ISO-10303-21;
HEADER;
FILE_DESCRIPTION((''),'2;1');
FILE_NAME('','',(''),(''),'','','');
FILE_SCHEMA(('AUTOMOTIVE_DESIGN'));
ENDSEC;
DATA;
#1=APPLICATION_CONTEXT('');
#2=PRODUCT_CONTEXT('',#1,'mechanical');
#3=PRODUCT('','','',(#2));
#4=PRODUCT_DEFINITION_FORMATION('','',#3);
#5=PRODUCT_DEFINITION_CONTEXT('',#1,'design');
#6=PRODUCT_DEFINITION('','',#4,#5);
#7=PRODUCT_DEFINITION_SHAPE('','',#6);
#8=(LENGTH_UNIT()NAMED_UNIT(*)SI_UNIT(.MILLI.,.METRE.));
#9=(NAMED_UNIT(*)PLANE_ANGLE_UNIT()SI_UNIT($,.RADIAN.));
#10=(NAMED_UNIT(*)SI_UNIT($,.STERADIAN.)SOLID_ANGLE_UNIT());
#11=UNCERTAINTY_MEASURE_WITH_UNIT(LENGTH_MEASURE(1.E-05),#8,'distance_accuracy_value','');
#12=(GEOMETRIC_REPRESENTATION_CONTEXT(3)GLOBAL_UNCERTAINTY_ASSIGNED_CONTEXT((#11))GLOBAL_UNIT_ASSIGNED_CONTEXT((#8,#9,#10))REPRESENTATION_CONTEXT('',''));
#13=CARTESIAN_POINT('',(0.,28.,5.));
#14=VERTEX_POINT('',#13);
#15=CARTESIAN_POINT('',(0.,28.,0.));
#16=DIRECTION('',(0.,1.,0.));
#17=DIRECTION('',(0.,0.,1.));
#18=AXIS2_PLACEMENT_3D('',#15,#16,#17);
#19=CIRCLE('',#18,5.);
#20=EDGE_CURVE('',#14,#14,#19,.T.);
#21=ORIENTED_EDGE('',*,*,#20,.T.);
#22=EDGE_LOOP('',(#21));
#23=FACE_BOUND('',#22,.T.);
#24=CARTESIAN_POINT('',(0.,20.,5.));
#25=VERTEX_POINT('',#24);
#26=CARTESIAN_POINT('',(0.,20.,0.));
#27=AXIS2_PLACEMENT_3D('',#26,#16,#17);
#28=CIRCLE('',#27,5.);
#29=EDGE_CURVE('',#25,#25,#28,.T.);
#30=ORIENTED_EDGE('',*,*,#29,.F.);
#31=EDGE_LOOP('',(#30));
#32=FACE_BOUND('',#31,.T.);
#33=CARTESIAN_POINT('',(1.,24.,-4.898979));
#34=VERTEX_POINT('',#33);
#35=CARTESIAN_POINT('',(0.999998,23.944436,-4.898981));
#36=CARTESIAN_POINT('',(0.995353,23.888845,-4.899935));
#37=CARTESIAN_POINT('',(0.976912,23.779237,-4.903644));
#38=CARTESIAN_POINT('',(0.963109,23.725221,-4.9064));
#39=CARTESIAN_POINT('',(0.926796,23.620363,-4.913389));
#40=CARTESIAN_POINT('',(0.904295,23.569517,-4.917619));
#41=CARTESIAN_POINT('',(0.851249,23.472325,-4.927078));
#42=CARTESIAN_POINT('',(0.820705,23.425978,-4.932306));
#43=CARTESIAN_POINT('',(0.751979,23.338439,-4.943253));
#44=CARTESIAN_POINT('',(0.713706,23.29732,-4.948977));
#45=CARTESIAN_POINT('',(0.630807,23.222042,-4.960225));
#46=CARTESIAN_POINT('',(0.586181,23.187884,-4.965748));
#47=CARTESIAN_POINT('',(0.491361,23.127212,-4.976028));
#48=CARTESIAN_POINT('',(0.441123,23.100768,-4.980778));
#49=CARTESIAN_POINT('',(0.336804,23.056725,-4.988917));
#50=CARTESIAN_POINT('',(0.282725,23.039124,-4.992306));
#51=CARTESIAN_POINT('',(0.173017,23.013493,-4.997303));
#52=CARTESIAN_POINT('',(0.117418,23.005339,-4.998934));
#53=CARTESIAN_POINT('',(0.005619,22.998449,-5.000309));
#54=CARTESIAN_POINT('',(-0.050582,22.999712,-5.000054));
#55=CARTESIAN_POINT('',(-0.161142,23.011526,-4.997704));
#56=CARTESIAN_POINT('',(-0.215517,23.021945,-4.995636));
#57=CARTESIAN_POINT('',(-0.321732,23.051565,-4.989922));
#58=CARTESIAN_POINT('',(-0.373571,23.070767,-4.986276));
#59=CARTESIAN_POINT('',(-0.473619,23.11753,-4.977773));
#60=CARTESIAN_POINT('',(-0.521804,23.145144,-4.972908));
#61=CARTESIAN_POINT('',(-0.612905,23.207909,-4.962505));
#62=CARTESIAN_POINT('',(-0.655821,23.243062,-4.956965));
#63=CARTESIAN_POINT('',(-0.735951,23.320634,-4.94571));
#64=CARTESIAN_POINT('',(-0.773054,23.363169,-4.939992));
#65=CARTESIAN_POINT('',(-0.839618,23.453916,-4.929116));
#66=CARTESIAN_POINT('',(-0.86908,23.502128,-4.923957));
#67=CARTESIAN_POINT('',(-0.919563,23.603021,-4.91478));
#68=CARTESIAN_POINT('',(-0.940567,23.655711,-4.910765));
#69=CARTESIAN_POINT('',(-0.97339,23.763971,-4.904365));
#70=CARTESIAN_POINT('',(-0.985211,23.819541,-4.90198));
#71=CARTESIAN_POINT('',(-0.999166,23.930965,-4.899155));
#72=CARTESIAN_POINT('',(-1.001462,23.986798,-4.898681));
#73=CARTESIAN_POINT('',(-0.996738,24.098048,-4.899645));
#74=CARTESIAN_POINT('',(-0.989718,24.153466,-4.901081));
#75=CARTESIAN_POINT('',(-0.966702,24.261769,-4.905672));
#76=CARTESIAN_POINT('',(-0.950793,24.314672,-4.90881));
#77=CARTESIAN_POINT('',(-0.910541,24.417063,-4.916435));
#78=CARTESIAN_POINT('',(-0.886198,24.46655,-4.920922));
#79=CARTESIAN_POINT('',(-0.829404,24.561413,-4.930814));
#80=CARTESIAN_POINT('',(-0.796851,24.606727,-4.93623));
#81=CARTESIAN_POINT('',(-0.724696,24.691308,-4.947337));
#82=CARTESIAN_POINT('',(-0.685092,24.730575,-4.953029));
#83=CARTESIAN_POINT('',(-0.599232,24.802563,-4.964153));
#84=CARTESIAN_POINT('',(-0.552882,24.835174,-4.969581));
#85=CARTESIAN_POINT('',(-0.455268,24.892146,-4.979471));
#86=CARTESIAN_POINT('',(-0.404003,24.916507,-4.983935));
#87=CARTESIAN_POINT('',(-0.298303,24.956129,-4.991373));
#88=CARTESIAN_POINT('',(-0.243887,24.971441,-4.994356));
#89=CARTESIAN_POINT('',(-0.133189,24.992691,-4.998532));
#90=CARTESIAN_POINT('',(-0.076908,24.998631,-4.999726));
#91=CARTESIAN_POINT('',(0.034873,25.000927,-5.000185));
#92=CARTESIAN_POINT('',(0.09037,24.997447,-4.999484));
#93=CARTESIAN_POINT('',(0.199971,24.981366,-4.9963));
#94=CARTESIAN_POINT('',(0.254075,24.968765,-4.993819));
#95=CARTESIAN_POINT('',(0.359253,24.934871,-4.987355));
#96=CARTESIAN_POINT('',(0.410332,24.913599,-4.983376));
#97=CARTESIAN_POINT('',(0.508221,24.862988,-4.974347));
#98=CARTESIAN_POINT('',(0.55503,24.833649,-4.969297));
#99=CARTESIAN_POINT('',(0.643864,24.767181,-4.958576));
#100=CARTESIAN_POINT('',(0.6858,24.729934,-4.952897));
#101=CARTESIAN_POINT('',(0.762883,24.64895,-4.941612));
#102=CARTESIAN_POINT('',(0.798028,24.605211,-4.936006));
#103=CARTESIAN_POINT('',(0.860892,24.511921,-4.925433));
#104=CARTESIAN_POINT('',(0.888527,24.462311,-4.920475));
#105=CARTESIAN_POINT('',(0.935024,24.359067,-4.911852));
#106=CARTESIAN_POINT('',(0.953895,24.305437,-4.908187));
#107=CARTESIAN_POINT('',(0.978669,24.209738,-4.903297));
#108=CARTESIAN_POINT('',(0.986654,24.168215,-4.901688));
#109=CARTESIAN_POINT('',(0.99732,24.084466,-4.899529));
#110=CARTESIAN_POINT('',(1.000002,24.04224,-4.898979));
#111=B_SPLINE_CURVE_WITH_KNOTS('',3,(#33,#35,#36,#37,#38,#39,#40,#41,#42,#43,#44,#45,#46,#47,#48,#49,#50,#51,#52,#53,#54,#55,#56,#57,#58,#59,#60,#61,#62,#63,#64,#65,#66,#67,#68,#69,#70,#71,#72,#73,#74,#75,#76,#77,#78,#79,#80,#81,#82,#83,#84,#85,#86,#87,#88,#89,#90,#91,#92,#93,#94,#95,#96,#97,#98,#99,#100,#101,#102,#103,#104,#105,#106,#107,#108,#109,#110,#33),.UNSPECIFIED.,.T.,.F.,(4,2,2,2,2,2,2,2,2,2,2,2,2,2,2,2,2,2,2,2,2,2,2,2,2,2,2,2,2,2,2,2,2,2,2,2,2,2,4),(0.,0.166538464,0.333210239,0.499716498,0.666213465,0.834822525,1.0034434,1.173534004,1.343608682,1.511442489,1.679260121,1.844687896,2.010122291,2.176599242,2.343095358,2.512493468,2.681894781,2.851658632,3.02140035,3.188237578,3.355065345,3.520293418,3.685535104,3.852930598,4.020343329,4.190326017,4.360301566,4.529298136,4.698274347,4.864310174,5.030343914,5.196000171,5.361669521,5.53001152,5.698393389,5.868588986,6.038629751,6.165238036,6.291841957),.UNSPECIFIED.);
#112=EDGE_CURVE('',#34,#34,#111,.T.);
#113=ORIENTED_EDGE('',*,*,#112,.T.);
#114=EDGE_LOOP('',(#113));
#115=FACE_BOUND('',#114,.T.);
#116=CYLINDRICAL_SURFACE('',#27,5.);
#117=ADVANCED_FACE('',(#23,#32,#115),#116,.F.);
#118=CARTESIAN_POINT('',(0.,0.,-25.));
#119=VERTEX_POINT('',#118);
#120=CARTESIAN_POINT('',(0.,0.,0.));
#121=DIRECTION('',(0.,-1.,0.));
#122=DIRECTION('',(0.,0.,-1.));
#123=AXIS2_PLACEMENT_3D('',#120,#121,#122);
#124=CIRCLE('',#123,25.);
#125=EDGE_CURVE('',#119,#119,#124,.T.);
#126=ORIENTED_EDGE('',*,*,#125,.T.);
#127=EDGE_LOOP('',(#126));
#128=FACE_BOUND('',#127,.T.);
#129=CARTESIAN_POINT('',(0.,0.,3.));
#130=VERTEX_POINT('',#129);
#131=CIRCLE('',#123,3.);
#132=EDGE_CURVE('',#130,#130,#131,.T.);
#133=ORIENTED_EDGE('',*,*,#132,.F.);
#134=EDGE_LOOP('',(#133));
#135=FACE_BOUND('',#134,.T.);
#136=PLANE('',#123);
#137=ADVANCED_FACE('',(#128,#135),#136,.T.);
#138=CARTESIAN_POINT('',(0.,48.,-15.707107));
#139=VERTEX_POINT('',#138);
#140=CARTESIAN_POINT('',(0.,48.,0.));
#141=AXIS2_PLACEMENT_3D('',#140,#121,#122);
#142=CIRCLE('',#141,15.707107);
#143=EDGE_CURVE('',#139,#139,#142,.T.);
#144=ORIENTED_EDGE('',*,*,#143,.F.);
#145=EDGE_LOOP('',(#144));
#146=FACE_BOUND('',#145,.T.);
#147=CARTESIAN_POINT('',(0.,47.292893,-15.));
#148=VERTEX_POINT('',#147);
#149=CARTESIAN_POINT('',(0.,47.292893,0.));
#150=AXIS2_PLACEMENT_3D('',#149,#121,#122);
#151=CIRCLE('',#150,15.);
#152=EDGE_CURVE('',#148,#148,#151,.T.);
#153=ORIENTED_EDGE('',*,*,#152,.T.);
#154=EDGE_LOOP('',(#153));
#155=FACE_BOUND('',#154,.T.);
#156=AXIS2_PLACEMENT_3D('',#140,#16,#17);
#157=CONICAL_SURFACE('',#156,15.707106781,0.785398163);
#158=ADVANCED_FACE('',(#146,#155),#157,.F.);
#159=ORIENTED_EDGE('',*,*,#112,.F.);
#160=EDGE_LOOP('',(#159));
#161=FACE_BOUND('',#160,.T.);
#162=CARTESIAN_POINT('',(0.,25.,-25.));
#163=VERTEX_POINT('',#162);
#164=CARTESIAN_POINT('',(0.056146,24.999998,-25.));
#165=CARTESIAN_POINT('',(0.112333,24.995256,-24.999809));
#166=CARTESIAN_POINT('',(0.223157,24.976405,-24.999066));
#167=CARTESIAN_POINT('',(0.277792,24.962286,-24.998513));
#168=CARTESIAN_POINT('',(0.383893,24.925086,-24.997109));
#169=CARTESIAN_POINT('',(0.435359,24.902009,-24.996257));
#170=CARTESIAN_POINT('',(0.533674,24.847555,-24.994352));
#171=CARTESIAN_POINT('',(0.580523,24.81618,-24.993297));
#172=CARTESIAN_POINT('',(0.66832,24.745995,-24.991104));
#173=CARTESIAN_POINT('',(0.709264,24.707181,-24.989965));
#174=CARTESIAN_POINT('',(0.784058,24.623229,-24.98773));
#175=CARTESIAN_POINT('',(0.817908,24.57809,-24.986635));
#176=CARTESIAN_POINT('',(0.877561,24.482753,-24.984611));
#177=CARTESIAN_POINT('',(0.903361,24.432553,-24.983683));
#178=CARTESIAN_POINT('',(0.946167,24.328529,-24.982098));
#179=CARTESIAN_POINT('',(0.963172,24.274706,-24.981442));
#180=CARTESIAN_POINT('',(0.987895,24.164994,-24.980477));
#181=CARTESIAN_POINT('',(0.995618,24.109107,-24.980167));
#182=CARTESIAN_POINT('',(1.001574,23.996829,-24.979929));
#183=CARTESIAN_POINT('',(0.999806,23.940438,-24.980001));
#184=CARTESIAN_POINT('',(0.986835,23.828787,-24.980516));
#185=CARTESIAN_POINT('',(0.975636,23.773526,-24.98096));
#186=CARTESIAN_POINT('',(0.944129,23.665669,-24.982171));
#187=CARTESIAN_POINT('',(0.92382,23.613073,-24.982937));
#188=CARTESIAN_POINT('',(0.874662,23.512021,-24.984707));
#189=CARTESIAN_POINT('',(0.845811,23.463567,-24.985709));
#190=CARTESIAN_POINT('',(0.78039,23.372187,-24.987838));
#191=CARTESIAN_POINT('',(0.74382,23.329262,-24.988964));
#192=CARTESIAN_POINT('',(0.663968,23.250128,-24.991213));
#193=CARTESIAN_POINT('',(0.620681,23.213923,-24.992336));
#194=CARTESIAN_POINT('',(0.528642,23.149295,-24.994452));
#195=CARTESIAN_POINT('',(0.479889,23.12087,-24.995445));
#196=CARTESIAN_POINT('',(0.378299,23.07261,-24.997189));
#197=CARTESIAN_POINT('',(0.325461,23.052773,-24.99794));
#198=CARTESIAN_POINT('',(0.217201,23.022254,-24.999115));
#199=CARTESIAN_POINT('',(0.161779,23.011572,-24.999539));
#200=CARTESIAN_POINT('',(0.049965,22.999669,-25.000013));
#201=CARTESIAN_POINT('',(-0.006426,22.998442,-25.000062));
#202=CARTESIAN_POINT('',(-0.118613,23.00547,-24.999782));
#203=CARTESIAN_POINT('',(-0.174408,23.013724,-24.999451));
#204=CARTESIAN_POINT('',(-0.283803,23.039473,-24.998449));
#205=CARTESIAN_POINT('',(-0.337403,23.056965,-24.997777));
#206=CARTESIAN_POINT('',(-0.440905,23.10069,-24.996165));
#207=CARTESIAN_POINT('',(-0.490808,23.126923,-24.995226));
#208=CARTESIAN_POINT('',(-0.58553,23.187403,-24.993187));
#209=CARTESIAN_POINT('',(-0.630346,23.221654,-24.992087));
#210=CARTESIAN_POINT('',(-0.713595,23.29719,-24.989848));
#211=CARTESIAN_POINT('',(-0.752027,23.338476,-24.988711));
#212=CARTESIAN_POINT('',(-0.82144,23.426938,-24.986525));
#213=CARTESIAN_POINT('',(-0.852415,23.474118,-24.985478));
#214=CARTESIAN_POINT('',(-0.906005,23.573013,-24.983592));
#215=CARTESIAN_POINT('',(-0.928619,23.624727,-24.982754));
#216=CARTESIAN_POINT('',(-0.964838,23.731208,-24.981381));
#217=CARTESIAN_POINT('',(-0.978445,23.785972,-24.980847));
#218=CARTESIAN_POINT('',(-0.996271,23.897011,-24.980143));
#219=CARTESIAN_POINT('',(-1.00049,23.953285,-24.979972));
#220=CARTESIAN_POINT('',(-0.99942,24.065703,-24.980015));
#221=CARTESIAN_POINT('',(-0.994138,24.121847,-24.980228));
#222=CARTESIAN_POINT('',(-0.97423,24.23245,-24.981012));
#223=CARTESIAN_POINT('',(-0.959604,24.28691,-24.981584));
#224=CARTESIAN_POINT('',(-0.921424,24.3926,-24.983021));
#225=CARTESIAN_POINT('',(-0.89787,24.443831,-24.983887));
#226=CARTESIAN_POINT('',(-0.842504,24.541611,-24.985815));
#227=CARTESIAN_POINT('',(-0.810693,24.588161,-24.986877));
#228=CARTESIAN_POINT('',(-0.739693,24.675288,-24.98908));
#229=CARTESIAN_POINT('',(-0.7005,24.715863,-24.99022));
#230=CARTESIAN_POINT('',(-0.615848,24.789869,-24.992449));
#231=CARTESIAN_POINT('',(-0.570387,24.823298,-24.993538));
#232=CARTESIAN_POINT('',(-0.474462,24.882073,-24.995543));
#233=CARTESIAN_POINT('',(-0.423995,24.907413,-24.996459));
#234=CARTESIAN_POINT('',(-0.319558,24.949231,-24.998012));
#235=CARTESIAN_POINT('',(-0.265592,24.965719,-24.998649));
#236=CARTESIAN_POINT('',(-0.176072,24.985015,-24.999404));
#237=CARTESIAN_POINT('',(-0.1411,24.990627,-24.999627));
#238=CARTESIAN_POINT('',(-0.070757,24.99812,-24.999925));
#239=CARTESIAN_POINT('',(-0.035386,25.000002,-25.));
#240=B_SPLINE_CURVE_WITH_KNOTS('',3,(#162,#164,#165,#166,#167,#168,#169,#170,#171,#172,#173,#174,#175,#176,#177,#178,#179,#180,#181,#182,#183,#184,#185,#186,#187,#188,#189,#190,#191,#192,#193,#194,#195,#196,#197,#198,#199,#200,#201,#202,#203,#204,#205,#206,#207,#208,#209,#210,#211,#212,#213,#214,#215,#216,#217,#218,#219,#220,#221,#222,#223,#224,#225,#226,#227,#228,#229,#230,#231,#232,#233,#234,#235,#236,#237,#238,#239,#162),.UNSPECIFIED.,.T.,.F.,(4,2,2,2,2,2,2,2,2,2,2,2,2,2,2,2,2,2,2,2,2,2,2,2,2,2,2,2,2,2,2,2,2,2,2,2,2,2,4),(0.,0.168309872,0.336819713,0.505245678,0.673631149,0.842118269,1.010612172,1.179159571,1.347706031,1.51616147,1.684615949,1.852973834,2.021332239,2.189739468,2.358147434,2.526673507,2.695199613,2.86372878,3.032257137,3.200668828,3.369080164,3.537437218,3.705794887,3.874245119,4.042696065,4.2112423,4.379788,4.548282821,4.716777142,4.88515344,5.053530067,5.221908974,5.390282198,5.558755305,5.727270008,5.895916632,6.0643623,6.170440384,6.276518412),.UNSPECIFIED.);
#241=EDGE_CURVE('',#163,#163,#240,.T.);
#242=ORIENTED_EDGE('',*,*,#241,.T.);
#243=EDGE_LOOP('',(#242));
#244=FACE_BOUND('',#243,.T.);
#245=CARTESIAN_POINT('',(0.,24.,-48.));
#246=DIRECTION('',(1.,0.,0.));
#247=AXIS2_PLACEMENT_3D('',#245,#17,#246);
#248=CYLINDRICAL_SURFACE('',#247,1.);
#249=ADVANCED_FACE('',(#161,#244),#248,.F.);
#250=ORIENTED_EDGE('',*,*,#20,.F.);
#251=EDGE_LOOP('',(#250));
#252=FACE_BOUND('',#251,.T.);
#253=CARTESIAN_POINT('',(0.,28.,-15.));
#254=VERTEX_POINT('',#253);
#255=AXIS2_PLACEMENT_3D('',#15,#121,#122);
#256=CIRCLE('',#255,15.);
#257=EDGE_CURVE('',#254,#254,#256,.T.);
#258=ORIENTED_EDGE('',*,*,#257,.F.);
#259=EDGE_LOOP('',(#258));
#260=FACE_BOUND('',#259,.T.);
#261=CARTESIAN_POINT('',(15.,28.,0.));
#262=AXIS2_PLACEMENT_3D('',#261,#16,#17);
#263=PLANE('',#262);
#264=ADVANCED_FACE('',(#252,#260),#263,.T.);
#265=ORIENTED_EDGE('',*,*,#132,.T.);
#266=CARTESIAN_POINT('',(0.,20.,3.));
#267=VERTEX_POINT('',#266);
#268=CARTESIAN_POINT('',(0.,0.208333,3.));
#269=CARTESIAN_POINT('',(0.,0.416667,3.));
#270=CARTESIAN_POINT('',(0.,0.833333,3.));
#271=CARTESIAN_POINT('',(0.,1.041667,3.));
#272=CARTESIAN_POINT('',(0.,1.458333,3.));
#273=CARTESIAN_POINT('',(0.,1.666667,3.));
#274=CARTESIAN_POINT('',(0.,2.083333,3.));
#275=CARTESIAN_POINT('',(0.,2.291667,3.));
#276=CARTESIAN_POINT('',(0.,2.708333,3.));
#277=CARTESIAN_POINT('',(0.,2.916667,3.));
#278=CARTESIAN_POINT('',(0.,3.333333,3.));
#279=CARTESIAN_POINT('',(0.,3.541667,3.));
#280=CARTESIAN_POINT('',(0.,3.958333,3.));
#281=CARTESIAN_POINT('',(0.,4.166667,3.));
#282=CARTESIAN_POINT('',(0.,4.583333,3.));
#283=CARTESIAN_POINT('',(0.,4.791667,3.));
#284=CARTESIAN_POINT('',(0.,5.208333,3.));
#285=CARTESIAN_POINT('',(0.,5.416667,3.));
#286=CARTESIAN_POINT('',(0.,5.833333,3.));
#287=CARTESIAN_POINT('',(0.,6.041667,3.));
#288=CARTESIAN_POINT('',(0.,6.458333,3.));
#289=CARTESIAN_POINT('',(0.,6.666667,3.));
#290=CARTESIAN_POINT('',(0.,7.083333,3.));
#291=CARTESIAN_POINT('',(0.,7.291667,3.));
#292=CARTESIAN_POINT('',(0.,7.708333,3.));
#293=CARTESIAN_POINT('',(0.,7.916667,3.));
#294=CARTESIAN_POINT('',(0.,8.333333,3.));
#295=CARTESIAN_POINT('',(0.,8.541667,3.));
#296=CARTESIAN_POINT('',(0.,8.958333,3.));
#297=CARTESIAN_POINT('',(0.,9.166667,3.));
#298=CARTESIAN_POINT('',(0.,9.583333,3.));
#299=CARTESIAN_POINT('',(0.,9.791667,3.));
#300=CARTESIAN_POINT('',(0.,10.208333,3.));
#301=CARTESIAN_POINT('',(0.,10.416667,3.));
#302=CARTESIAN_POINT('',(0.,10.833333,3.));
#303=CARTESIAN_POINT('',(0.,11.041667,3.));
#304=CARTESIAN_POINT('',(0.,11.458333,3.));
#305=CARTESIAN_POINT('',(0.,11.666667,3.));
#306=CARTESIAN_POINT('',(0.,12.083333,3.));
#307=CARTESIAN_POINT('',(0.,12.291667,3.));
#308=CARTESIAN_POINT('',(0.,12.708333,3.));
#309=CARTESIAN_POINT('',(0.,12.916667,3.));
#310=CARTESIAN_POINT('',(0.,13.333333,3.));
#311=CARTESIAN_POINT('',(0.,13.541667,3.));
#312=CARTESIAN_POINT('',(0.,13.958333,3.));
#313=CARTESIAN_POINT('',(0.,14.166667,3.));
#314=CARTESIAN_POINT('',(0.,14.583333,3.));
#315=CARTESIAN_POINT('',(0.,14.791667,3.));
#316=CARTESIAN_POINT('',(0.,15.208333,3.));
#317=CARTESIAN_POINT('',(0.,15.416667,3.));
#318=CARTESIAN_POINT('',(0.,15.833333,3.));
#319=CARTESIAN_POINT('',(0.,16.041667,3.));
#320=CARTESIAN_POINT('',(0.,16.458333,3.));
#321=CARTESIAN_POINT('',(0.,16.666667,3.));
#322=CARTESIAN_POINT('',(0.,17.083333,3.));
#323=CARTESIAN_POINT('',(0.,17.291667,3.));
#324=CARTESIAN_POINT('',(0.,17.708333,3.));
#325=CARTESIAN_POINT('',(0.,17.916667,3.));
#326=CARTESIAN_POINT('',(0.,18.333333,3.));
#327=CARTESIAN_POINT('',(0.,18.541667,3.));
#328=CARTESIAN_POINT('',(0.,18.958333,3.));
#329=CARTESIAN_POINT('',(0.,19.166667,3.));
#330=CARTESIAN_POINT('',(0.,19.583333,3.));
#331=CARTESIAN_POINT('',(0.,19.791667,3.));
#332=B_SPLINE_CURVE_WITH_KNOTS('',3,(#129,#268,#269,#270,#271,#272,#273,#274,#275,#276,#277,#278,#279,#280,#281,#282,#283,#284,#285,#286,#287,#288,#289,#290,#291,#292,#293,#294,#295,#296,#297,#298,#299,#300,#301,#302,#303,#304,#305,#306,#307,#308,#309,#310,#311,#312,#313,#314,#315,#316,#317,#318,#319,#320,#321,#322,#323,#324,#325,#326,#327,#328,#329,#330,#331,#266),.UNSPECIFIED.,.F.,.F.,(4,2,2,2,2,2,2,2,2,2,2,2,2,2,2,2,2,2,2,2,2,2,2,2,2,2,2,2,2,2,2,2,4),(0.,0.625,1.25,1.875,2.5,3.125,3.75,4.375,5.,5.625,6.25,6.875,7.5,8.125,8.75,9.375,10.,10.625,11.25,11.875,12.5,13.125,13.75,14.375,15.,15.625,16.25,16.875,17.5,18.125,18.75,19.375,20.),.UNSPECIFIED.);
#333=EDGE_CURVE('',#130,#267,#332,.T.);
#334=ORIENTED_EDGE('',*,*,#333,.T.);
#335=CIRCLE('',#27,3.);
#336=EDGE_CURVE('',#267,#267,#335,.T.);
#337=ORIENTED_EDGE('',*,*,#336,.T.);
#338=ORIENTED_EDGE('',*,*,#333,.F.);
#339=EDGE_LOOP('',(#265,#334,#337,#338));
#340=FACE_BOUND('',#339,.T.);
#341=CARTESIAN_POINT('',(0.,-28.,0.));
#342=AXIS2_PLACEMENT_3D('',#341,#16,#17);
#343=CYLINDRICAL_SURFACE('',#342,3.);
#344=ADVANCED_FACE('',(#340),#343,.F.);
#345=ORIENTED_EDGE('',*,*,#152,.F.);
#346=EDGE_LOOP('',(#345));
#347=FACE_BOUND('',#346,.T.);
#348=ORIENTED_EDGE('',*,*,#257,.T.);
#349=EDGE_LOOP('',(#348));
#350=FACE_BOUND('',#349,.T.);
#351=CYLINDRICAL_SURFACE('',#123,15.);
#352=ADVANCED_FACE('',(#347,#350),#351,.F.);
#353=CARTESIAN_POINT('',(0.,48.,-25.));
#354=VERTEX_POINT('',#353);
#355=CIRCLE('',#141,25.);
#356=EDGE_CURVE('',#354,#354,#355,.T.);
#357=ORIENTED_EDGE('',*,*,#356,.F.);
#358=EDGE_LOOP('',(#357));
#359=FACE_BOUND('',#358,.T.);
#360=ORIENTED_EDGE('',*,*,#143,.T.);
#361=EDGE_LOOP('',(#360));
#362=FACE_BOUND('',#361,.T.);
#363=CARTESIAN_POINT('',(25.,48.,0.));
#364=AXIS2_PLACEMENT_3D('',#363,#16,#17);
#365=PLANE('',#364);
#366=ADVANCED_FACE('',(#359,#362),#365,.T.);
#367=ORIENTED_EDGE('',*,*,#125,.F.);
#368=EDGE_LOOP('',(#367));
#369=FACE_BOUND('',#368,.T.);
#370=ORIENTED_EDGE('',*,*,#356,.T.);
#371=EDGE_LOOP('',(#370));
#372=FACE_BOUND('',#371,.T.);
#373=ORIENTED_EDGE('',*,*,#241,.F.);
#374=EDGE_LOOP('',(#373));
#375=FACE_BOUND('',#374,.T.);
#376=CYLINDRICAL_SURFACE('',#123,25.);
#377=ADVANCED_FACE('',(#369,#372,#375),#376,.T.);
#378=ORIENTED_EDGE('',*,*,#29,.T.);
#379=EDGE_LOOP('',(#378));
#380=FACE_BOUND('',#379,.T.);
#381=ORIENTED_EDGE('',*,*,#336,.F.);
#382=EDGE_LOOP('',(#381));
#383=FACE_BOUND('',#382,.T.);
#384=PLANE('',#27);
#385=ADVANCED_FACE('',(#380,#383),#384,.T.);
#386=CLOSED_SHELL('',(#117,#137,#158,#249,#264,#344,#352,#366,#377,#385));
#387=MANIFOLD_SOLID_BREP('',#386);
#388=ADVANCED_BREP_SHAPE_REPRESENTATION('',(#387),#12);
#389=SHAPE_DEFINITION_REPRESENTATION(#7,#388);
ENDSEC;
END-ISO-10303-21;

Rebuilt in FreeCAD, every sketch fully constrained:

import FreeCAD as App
import Part
import Sketcher
from FreeCAD import Vector
Q = App.Units.Quantity


def add_polygon(sketch, points):
    """Adds a closed chain of lines whose ends are joined by coincident constraints."""
    first, n = sketch.GeometryCount, len(points)
    for a, b in zip(points, points[1:] + points[:1]):
        sketch.addGeometry(Part.LineSegment(App.Vector(*a, 0), App.Vector(*b, 0)), False)
    for i in range(n):
        sketch.addConstraint(Sketcher.Constraint("Coincident", first + i, 2, first + (i + 1) % n, 1))

doc = App.newDocument("Part")
body = doc.addObject("PartDesign::Body", "Body")

sketch1 = body.newObject("Sketcher::SketchObject", "Sketch")
sketch1.AttachmentSupport = (doc.getObject("XY_Plane"), [""])
sketch1.MapMode = "FlatFace"
add_polygon(sketch1, [(0, 0), (25, 0), (25, 48), (15.7, 48), (15, 47.3), (15, 28), (0, 28)])
sketch1.addConstraint([
    Sketcher.Constraint("Horizontal", 0),
    Sketcher.Constraint("Vertical", 1),
    Sketcher.Constraint("Horizontal", 2),
    Sketcher.Constraint("Vertical", 4),
    Sketcher.Constraint("Horizontal", 5),
    Sketcher.Constraint("Vertical", 6),
    Sketcher.Constraint("Coincident", 6, 2, -1, 1),
    Sketcher.Constraint("DistanceX", 0, 1, 0, 2, 25.0),
    Sketcher.Constraint("DistanceX", 5, 2, 5, 1, 15.0),
    Sketcher.Constraint("DistanceY", 1, 1, 1, 2, 48.0),
    Sketcher.Constraint("DistanceY", 6, 2, 6, 1, 28.0),
    Sketcher.Constraint("Angle", 3, Q("-135 deg")),
    Sketcher.Constraint("Distance", 3, 1.0),
])
revolution = body.newObject("PartDesign::Revolution", "Revolution")
revolution.Profile = sketch1
revolution.ReferenceAxis = (sketch1, ["V_Axis"])
revolution.Angle = 360

sketch2 = body.newObject("Sketcher::SketchObject", "Sketch001")
sketch2.AttachmentSupport = (doc.getObject("XZ_Plane"), [""])
sketch2.MapMode = "FlatFace"
sketch2.AttachmentOffset = App.Placement(Vector(0, 0, -28), App.Rotation())
sketch2.addGeometry(Part.Circle(Vector(0, 0, 0), Vector(0, 0, 1), 5), False)
sketch2.addConstraint([
    Sketcher.Constraint("Coincident", 0, 3, -1, 1),
    Sketcher.Constraint("Diameter", 0, 10.0),
])
pocket1 = body.newObject("PartDesign::Pocket", "Pocket")
pocket1.Profile = sketch2
pocket1.Length = 8
pocket1.Reversed = True

sketch3 = body.newObject("Sketcher::SketchObject", "Sketch002")
sketch3.AttachmentSupport = (doc.getObject("XZ_Plane"), [""])
sketch3.MapMode = "FlatFace"
sketch3.AttachmentOffset = App.Placement(Vector(0, 0, -20), App.Rotation())
sketch3.addGeometry(Part.Circle(Vector(0, 0, 0), Vector(0, 0, 1), 3), False)
sketch3.addConstraint([
    Sketcher.Constraint("Coincident", 0, 3, -1, 1),
    Sketcher.Constraint("Diameter", 0, 6.0),
])
pocket2 = body.newObject("PartDesign::Pocket", "Pocket001")
pocket2.Profile = sketch3
pocket2.Length = 48
pocket2.Reversed = True

sketch4 = body.newObject("Sketcher::SketchObject", "Sketch003")
sketch4.AttachmentSupport = (doc.getObject("XY_Plane"), [""])
sketch4.MapMode = "FlatFace"
sketch4.addGeometry(Part.Circle(Vector(0, 24, 0), Vector(0, 0, 1), 1), False)
sketch4.addConstraint([
    Sketcher.Constraint("PointOnObject", 0, 3, -2),
    Sketcher.Constraint("Diameter", 0, 2.0),
    Sketcher.Constraint("DistanceY", -1, 1, 0, 3, 24.0),
])
pocket3 = body.newObject("PartDesign::Pocket", "Pocket002")
pocket3.Profile = sketch4
pocket3.Length = 48

doc.recompute()
